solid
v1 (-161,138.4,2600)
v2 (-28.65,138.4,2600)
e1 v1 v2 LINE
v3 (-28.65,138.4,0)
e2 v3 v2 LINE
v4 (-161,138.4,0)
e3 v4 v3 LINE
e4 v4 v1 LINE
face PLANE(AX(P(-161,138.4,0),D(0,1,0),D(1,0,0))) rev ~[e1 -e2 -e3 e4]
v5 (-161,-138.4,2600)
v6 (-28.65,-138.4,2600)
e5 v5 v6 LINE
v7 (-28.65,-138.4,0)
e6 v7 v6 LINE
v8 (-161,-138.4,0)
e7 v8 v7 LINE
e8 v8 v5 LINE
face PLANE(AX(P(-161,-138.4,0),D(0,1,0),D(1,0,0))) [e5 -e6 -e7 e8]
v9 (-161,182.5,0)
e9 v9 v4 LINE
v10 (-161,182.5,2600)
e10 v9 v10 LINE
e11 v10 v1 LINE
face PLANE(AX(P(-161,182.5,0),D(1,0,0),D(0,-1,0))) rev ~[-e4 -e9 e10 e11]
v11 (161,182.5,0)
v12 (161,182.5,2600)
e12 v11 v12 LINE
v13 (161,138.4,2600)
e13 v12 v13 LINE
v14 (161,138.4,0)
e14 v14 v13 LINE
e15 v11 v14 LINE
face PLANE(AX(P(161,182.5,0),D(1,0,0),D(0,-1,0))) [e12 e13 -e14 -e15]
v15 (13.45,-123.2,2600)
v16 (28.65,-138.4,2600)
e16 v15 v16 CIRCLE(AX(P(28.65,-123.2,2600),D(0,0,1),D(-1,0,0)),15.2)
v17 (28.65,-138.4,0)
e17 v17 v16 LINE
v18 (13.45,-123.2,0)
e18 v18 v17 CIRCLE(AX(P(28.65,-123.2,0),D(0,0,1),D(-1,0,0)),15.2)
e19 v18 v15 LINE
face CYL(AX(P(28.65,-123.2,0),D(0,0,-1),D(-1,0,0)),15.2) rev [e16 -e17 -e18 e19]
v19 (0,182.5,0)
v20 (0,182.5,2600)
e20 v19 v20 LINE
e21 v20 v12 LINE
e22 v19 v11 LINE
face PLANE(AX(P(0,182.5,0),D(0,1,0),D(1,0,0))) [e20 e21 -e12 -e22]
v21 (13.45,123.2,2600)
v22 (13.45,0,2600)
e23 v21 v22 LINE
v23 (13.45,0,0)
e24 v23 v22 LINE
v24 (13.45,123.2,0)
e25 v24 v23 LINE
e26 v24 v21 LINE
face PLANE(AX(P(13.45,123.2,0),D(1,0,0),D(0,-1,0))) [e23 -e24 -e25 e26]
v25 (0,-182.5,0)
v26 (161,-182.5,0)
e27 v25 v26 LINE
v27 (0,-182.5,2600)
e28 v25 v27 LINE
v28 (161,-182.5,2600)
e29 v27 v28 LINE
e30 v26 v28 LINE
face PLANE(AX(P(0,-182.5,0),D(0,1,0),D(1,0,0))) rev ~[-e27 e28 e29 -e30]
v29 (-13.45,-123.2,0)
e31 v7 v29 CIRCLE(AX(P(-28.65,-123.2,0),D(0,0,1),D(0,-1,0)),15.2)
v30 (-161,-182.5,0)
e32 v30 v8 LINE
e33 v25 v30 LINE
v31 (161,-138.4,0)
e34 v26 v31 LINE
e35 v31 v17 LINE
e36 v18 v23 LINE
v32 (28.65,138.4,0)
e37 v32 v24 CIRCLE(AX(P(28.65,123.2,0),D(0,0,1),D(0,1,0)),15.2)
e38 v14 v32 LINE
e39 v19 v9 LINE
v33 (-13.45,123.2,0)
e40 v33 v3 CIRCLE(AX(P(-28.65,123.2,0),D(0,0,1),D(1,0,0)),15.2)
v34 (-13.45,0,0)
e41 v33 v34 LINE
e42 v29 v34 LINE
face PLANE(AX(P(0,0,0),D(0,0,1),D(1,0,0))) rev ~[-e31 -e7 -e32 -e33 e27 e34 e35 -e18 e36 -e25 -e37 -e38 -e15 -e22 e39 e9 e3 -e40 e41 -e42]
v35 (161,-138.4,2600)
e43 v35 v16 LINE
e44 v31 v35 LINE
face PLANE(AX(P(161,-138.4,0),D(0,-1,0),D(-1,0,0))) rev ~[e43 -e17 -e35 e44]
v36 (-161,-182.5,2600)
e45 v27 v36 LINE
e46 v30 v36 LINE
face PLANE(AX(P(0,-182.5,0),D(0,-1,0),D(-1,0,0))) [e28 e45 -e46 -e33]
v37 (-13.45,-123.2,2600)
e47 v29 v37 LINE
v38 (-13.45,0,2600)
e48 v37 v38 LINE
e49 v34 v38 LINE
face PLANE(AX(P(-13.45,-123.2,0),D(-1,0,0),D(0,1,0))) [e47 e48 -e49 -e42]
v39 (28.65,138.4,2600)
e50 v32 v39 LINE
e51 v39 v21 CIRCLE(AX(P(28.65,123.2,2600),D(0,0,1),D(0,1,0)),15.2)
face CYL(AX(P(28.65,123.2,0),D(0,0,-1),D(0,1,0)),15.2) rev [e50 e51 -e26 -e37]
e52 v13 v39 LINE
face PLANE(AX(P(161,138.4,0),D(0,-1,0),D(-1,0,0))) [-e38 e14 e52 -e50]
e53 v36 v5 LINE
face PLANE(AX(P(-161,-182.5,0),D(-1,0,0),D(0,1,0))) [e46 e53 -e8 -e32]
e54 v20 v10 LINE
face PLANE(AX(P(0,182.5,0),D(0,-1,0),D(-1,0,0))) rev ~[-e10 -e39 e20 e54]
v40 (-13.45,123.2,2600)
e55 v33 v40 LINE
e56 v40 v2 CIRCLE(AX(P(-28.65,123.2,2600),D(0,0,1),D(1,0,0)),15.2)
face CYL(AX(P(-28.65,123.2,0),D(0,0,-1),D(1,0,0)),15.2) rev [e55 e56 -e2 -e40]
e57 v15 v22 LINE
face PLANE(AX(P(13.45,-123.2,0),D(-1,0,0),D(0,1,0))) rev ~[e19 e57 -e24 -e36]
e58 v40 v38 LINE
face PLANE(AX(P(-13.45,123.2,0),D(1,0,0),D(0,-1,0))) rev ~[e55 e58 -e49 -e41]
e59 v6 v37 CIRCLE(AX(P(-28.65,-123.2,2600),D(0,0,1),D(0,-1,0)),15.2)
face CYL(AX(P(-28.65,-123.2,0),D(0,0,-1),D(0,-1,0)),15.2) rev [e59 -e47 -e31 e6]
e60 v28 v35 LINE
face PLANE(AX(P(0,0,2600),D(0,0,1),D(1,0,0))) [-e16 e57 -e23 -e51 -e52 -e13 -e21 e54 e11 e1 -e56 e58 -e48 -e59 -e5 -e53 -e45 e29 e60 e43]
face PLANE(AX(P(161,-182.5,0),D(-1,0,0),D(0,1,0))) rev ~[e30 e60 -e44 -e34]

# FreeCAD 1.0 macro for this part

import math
import FreeCAD as App
import Part
import Sketcher
from FreeCAD import Vector
Q = App.Units.Quantity

doc = App.newDocument("Part")
params = doc.addObject("Spreadsheet::Sheet", "Params")
for row, (alias, value) in enumerate([
    ("sketch1_radius", "15.2 mm"),
    ("sketch1_height", "44.1 mm"),
    ("pad1_length", "2600 mm"),
], start=1):
    params.set(f"A{row}", alias)
    params.set(f"B{row}", "=" + value)
    params.setAlias(f"B{row}", alias)

body = doc.addObject("PartDesign::Body", "Body")

# Sketch on XY plane
sketch1 = body.newObject("Sketcher::SketchObject", "Sketch")
sketch1.AttachmentSupport = (doc.getObject("XY_Plane"), [""])
sketch1.MapMode = "FlatFace"
sketch1.addGeometry([
    Part.LineSegment(Vector(-161, -138, 0), Vector(-161, -182, 0)),  # 0
    Part.LineSegment(Vector(-161, -182, 0), Vector(161, -182, 0)),  # 1
    Part.LineSegment(Vector(161, -182, 0), Vector(161, -138, 0)),  # 2
    Part.LineSegment(Vector(161, -138, 0), Vector(29, -138, 0)),  # 3
    Part.ArcOfCircle(Part.Circle(Vector(29, -123, 0), Vector(0, 0, 1), 15), math.radians(180), math.radians(270)),  # 4
    Part.LineSegment(Vector(13, -123, 0), Vector(13, 123, 0)),  # 5
    Part.ArcOfCircle(Part.Circle(Vector(29, 123, 0), Vector(0, 0, 1), 15), math.radians(90), math.radians(180)),  # 6
    Part.LineSegment(Vector(29, 138, 0), Vector(161, 138, 0)),  # 7
    Part.LineSegment(Vector(161, 138, 0), Vector(161, 182, 0)),  # 8
    Part.LineSegment(Vector(161, 182, 0), Vector(-161, 182, 0)),  # 9
    Part.LineSegment(Vector(-161, 182, 0), Vector(-161, 138, 0)),  # 10
    Part.LineSegment(Vector(-161, 138, 0), Vector(-29, 138, 0)),  # 11
    Part.ArcOfCircle(Part.Circle(Vector(-29, 123, 0), Vector(0, 0, 1), 15), math.radians(0), math.radians(90)),  # 12
    Part.LineSegment(Vector(-13, 123, 0), Vector(-13, -123, 0)),  # 13
    Part.ArcOfCircle(Part.Circle(Vector(-29, -123, 0), Vector(0, 0, 1), 15), math.radians(-90), math.radians(0)),  # 14
    Part.LineSegment(Vector(-29, -138, 0), Vector(-161, -138, 0)),  # 15
], False)
sketch1.addConstraint([
    Sketcher.Constraint("Coincident", 0, 2, 1, 1),
    Sketcher.Constraint("Coincident", 1, 2, 2, 1),
    Sketcher.Constraint("Coincident", 2, 2, 3, 1),
    Sketcher.Constraint("Tangent", 3, 2, 4, 2),
    Sketcher.Constraint("Tangent", 4, 1, 5, 1),
    Sketcher.Constraint("Tangent", 5, 2, 6, 2),
    Sketcher.Constraint("Tangent", 6, 1, 7, 1),
    Sketcher.Constraint("Coincident", 7, 2, 8, 1),
    Sketcher.Constraint("Coincident", 8, 2, 9, 1),
    Sketcher.Constraint("Coincident", 9, 2, 10, 1),
    Sketcher.Constraint("Coincident", 10, 2, 11, 1),
    Sketcher.Constraint("Tangent", 11, 2, 12, 2),
    Sketcher.Constraint("Tangent", 12, 1, 13, 1),
    Sketcher.Constraint("Tangent", 13, 2, 14, 2),
    Sketcher.Constraint("Tangent", 14, 1, 15, 1),
    Sketcher.Constraint("Coincident", 15, 2, 0, 1),
    Sketcher.Constraint("Vertical", 0),
    Sketcher.Constraint("Horizontal", 1),
    Sketcher.Constraint("Vertical", 2),
    Sketcher.Constraint("Horizontal", 3),
    Sketcher.Constraint("Vertical", 5),
    Sketcher.Constraint("Horizontal", 7),
    Sketcher.Constraint("Vertical", 8),
    Sketcher.Constraint("Horizontal", 9),
    Sketcher.Constraint("Vertical", 10),
    Sketcher.Constraint("Horizontal", 11),
    Sketcher.Constraint("Vertical", 13),
    Sketcher.Constraint("Horizontal", 15),
    Sketcher.Constraint("Equal", 4, 6),
    Sketcher.Constraint("Equal", 6, 12),
    Sketcher.Constraint("Equal", 12, 14),
    Sketcher.Constraint("Symmetric", 4, 3, 12, 3, -1, 1),
    Sketcher.Constraint("Symmetric", 0, 2, 8, 2, -1, 1),
    Sketcher.Constraint("Symmetric", 7, 2, 10, 2, -2),
    Sketcher.Constraint("Symmetric", 2, 2, 15, 2, -2),
    Sketcher.Constraint("Radius", 4, Q("15.2 mm")),
    Sketcher.Constraint("DistanceY", 0, 2, 0, 1, Q("44.1 mm")),
    Sketcher.Constraint("DistanceX", 0, 2, -1, 1, Q("161 mm")),
    Sketcher.Constraint("DistanceY", 0, 2, -1, 1, Q("182.5 mm")),
    Sketcher.Constraint("DistanceX", -1, 1, 4, 1, Q("13.45 mm")),
])
sketch1.setExpression("Constraints[35]", "Params.sketch1_radius")
sketch1.setExpression("Constraints[36]", "Params.sketch1_height")
pad1 = body.newObject("PartDesign::Pad", "Pad")
pad1.Profile = sketch1
pad1.setExpression("Length", "Params.pad1_length")

doc.recompute()
